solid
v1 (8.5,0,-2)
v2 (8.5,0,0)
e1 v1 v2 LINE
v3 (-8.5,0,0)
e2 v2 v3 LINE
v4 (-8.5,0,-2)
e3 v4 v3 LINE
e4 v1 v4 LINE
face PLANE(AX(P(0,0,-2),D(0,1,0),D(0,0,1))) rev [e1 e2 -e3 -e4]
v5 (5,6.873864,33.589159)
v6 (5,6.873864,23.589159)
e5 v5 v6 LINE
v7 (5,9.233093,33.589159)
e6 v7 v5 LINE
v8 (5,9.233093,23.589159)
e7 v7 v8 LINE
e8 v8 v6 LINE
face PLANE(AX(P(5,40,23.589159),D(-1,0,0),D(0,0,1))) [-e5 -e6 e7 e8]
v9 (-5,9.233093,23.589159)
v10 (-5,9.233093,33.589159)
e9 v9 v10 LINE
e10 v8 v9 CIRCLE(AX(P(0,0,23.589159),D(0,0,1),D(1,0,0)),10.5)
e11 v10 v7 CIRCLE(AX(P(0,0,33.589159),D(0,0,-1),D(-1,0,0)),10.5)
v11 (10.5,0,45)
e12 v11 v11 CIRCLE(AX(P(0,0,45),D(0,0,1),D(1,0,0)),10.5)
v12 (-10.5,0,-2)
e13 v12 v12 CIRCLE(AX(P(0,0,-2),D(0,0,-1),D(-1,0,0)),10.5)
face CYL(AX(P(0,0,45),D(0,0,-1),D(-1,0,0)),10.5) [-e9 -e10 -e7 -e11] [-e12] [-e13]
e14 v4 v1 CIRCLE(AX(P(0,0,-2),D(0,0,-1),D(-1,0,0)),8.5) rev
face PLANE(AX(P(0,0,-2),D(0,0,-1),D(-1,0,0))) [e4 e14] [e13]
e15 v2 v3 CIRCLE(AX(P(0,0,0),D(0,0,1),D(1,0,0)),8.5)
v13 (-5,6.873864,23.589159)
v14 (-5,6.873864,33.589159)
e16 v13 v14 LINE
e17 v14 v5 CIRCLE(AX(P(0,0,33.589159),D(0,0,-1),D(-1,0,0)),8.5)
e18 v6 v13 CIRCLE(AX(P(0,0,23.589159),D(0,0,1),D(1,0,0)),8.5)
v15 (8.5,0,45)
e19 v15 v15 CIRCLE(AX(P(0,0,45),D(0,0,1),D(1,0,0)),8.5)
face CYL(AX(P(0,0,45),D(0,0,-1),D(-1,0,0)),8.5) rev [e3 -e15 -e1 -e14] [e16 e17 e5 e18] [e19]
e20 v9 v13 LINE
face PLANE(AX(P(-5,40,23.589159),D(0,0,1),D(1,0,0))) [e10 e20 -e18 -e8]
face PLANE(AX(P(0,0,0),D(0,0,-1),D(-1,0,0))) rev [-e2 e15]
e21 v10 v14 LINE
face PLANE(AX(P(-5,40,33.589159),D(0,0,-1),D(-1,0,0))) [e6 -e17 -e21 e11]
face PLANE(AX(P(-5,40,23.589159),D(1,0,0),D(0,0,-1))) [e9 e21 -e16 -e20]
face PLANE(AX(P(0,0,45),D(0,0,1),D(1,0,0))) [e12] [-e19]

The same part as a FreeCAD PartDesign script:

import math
import FreeCAD as App
import Part
import Sketcher
from FreeCAD import Vector

doc = App.newDocument("Part")
body = doc.addObject("PartDesign::Body", "Body")

sketch1 = body.newObject("Sketcher::SketchObject", "Sketch")
sketch1.AttachmentSupport = (doc.getObject("XY_Plane"), [""])
sketch1.MapMode = "FlatFace"
sketch1.addGeometry(Part.Circle(Vector(0, 0, 0), Vector(0, 0, 1), 10), False)
sketch1.addGeometry(Part.Circle(Vector(0, 0, 0), Vector(0, 0, 1), 8), False)
sketch1.addConstraint(Sketcher.Constraint("Coincident", 0, 3, -1, 1))
sketch1.addConstraint(Sketcher.Constraint("Coincident", 1, 3, -1, 1))
sketch1.addConstraint(Sketcher.Constraint("Diameter", 0, 21.0))
sketch1.addConstraint(Sketcher.Constraint("Diameter", 1, 17.0))
pad1 = body.newObject("PartDesign::Pad", "Pad")
pad1.Profile = sketch1
pad1.Length = 45

sketch2 = body.newObject("Sketcher::SketchObject", "Sketch001")
sketch2.AttachmentSupport = (doc.getObject("XZ_Plane"), [""])
sketch2.MapMode = "FlatFace"
sketch2.addGeometry(Part.LineSegment(Vector(-5, 24, 0), Vector(-5, 34, 0)), False)
sketch2.addGeometry(Part.LineSegment(Vector(-5, 34, 0), Vector(5, 34, 0)), False)
sketch2.addGeometry(Part.LineSegment(Vector(5, 34, 0), Vector(5, 24, 0)), False)
sketch2.addGeometry(Part.LineSegment(Vector(5, 24, 0), Vector(-5, 24, 0)), False)
sketch2.addConstraint(Sketcher.Constraint("Coincident", 0, 2, 1, 1))
sketch2.addConstraint(Sketcher.Constraint("Coincident", 1, 2, 2, 1))
sketch2.addConstraint(Sketcher.Constraint("Coincident", 2, 2, 3, 1))
sketch2.addConstraint(Sketcher.Constraint("Coincident", 3, 2, 0, 1))
sketch2.addConstraint(Sketcher.Constraint("Vertical", 0))
sketch2.addConstraint(Sketcher.Constraint("Horizontal", 1))
sketch2.addConstraint(Sketcher.Constraint("Vertical", 2))
sketch2.addConstraint(Sketcher.Constraint("Horizontal", 3))
sketch2.addConstraint(Sketcher.Constraint("Equal", 3, 0))
sketch2.addConstraint(Sketcher.Constraint("DistanceX", 1, 1, 1, 2, 10.0))
sketch2.addConstraint(Sketcher.Constraint("DistanceX", 0, 2, -1, 1, 5.0))
sketch2.addConstraint(Sketcher.Constraint("DistanceY", -1, 1, 0, 2, 33.589159))
pocket1 = body.newObject("PartDesign::Pocket", "Pocket")
pocket1.Profile = sketch2
pocket1.Length = 40

sketch3 = body.newObject("Sketcher::SketchObject", "Sketch002")
sketch3.AttachmentSupport = (doc.getObject("XY_Plane"), [""])
sketch3.MapMode = "FlatFace"
sketch3.AttachmentOffset = App.Placement(Vector(0, 0, -2), App.Rotation())
sketch3.addGeometry(Part.Circle(Vector(0, 0, 0), Vector(0, 0, 1), 10), False)
sketch3.addGeometry(Part.ArcOfCircle(Part.Circle(Vector(0, 0, 0), Vector(0, 0, 1), 8), math.radians(180), math.radians(360)), False)
sketch3.addGeometry(Part.LineSegment(Vector(8, 0, 0), Vector(-8, 0, 0)), False)
sketch3.addConstraint(Sketcher.Constraint("Coincident", 1, 1, 2, 2))
sketch3.addConstraint(Sketcher.Constraint("Coincident", 2, 1, 1, 2))
sketch3.addConstraint(Sketcher.Constraint("Horizontal", 2))
sketch3.addConstraint(Sketcher.Constraint("Coincident", 0, 3, -1, 1))
sketch3.addConstraint(Sketcher.Constraint("Coincident", 1, 3, -1, 1))
sketch3.addConstraint(Sketcher.Constraint("PointOnObject", 1, 1, -1))
sketch3.addConstraint(Sketcher.Constraint("Diameter", 0, 21.0))
sketch3.addConstraint(Sketcher.Constraint("Radius", 1, 8.5))
pad2 = body.newObject("PartDesign::Pad", "Pad001")
pad2.Profile = sketch3
pad2.Length = 2

doc.recompute()
